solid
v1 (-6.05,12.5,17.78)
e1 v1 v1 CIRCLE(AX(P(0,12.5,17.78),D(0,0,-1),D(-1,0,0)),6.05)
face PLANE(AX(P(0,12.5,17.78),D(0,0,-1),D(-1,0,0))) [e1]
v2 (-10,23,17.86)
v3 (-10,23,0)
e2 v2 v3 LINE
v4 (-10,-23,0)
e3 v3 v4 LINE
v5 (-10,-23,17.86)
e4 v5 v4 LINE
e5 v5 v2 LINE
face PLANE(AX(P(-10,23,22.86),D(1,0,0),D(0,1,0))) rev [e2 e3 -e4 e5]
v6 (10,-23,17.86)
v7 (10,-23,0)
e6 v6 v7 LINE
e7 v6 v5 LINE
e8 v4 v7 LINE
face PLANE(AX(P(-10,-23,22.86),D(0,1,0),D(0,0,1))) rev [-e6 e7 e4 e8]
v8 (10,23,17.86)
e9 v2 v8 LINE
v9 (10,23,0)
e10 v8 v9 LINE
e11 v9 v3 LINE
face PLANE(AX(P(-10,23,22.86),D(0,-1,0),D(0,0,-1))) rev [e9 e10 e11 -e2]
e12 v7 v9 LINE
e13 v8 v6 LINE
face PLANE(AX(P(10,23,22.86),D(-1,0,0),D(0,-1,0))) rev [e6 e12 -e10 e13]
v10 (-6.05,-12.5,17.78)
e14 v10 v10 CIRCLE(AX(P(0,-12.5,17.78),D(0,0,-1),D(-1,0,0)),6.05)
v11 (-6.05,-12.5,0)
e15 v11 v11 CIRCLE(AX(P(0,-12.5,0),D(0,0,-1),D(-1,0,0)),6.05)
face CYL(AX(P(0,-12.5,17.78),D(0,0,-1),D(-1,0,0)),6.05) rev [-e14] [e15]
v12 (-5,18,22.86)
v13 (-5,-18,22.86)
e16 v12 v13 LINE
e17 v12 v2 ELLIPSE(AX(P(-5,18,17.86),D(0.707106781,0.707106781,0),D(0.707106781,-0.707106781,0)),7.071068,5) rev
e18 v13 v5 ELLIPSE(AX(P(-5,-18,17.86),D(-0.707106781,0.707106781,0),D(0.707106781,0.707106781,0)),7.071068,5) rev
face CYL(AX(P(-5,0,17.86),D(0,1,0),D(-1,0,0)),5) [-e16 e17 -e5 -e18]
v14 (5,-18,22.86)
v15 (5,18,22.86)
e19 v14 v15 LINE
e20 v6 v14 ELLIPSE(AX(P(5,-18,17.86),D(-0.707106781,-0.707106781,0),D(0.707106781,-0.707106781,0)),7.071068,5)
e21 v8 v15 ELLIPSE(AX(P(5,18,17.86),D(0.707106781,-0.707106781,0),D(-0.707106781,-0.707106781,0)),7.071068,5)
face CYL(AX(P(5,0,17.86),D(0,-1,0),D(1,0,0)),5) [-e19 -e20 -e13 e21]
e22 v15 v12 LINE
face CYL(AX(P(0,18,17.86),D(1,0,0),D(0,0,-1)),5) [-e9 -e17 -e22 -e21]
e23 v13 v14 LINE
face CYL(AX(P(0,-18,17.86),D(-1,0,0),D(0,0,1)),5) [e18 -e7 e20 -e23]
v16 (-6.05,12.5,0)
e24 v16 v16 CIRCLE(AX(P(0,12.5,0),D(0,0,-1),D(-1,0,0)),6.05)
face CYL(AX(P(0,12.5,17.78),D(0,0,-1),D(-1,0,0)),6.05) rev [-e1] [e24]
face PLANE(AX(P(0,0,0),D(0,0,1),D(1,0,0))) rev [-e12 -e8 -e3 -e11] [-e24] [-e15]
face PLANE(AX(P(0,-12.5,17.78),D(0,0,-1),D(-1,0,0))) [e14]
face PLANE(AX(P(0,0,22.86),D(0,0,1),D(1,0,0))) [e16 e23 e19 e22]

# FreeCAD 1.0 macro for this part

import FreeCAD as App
import Part
import Sketcher
Q = App.Units.Quantity


def edges_at(feature, points):
    """Names of the edges that pass closest to the given points."""
    edges = feature.Shape.Edges
    near = lambda p: min(range(len(edges)), key=lambda i: edges[i].distToShape(Part.Vertex(*p))[0])
    return sorted({f"Edge{near(p) + 1}" for p in points})


def add_polygon(sketch, points):
    """Adds a closed chain of lines whose ends are joined by coincident constraints."""
    first, n = sketch.GeometryCount, len(points)
    for a, b in zip(points, points[1:] + points[:1]):
        sketch.addGeometry(Part.LineSegment(App.Vector(*a, 0), App.Vector(*b, 0)), False)
    for i in range(n):
        sketch.addConstraint(Sketcher.Constraint("Coincident", first + i, 2, first + (i + 1) % n, 1))

doc = App.newDocument("Part")
body = doc.addObject("PartDesign::Body", "Body")

sketch1 = body.newObject("Sketcher::SketchObject", "Sketch")
sketch1.AttachmentSupport = (doc.getObject("XY_Plane"), [""])
sketch1.MapMode = "FlatFace"
add_polygon(sketch1, [(-10, 23), (-10, -23), (10, -23), (10, 23)])
sketch1.addConstraint([
    Sketcher.Constraint("Vertical", 0),
    Sketcher.Constraint("Horizontal", 1),
    Sketcher.Constraint("Vertical", 2),
    Sketcher.Constraint("Horizontal", 3),
    Sketcher.Constraint("Symmetric", 0, 2, 2, 2, -1, 1),
    Sketcher.Constraint("DistanceX", 1, 1, 1, 2, Q("20 mm")),
    Sketcher.Constraint("DistanceY", 0, 2, 0, 1, Q("46 mm")),
])
pad1 = body.newObject("PartDesign::Pad", "Pad")
pad1.Profile = sketch1
pad1.Length = 22.86

sketch2 = body.newObject("Sketcher::SketchObject", "Sketch001")
sketch2.AttachmentSupport = (doc.getObject("XY_Plane"), [""])
sketch2.MapMode = "FlatFace"
sketch2.addGeometry([
    Part.Circle(App.Vector(0, 12, 0), App.Vector(0, 0, 1), 6),
    Part.Circle(App.Vector(0, -12, 0), App.Vector(0, 0, 1), 6),
], False)
sketch2.addConstraint([
    Sketcher.Constraint("Equal", 0, 1),
    Sketcher.Constraint("Symmetric", 0, 3, 1, 3, -1, 1),
    Sketcher.Constraint("PointOnObject", 0, 3, -2),
    Sketcher.Constraint("Diameter", 0, Q("12.1 mm")),
    Sketcher.Constraint("DistanceY", 1, 3, 0, 3, Q("25 mm")),
])
pocket1 = body.newObject("PartDesign::Pocket", "Pocket")
pocket1.Profile = sketch2
pocket1.Length = 17.78
pocket1.Reversed = True
doc.recompute()

fillet = body.newObject("PartDesign::Fillet", "Fillet")
fillet.Base = (pocket1, edges_at(pocket1, [
    (-10, 0, 22.86),
    (0, -23, 22.86),
    (10, 0, 22.86),
    (0, 23, 22.86),
]))
fillet.Radius = 5

doc.recompute()
